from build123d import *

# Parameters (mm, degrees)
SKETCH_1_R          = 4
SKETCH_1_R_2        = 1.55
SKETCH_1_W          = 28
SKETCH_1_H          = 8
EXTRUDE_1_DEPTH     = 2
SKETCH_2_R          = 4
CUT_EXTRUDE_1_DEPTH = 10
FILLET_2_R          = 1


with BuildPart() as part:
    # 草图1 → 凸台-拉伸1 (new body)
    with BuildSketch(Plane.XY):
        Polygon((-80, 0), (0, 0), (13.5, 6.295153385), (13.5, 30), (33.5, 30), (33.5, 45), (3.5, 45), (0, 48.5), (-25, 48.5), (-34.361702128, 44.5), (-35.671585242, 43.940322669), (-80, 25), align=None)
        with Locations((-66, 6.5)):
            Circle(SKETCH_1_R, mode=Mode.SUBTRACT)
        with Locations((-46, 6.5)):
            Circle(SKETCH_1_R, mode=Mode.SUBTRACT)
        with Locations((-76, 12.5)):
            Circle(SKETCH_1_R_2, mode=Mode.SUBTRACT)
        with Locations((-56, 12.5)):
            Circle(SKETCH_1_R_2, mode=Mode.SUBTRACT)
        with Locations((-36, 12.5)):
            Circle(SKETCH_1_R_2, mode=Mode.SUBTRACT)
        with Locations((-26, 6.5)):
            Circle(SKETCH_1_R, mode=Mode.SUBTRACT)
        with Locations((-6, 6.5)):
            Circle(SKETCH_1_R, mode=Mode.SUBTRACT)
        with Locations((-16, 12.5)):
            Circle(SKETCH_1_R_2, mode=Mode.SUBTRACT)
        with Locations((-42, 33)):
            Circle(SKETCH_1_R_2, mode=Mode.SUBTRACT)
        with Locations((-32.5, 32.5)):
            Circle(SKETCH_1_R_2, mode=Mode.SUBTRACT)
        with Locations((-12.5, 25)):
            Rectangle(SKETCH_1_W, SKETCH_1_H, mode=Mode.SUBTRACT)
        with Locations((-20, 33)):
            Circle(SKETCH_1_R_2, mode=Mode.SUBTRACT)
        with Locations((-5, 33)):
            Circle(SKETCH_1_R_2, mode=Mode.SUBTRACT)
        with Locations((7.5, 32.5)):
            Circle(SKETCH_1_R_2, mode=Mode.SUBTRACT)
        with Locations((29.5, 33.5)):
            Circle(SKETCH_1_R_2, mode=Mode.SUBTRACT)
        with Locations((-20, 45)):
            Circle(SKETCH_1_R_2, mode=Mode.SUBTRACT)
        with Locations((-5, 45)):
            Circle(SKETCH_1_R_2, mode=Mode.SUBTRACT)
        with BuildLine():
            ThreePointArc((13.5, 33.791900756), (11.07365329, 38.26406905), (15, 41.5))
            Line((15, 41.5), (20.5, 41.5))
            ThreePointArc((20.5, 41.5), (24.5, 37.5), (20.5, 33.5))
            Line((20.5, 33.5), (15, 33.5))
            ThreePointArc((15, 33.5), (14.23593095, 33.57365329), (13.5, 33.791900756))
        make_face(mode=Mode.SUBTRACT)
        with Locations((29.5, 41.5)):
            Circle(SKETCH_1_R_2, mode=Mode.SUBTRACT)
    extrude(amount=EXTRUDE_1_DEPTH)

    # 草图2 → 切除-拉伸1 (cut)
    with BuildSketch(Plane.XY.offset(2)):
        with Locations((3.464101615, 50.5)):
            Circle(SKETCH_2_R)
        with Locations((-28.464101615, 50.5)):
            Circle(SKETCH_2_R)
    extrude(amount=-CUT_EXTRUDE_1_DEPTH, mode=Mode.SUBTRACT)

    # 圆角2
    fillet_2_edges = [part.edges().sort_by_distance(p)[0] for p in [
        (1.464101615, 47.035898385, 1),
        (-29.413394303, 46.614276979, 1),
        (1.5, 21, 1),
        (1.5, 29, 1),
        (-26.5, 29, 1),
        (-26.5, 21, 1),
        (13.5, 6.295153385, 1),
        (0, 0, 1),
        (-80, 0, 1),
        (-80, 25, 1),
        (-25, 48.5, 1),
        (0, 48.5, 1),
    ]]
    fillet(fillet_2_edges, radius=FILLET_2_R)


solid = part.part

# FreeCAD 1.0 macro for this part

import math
import FreeCAD as App
import Part
import Sketcher
from FreeCAD import Vector
Q = App.Units.Quantity


def edges_at(feature, points):
    """Names of the edges that pass closest to the given points."""
    edges = feature.Shape.Edges
    near = lambda p: min(range(len(edges)), key=lambda i: edges[i].distToShape(Part.Vertex(*p))[0])
    return sorted({f"Edge{near(p) + 1}" for p in points})


def add_polygon(sketch, points):
    """Adds a closed chain of lines whose ends are joined by coincident constraints."""
    first, n = sketch.GeometryCount, len(points)
    for a, b in zip(points, points[1:] + points[:1]):
        sketch.addGeometry(Part.LineSegment(App.Vector(*a, 0), App.Vector(*b, 0)), False)
    for i in range(n):
        sketch.addConstraint(Sketcher.Constraint("Coincident", first + i, 2, first + (i + 1) % n, 1))

doc = App.newDocument("Part")
body = doc.addObject("PartDesign::Body", "Body")

sketch1 = body.newObject("Sketcher::SketchObject", "Sketch")
sketch1.AttachmentSupport = (doc.getObject("XY_Plane"), [""])
sketch1.MapMode = "FlatFace"
add_polygon(sketch1, [(-80, 0), (0, 0), (13.5, 6.295153), (13.5, 30), (33.5, 30), (33.5, 45), (3.5, 45), (0, 48.5), (-25, 48.5), (-34.361702, 44.5), (-35.671585, 43.940323), (-80, 25)])
sketch1.addGeometry(Part.Circle(Vector(-66, 6.5, 0), Vector(0, 0, 1), 4), False)
sketch1.addGeometry(Part.Circle(Vector(-76, 12.5, 0), Vector(0, 0, 1), 1.55), False)
sketch1.addGeometry(Part.Circle(Vector(-56, 12.5, 0), Vector(0, 0, 1), 1.55), False)
sketch1.addGeometry(Part.Circle(Vector(-46, 6.5, 0), Vector(0, 0, 1), 4), False)
sketch1.addGeometry(Part.Circle(Vector(-26, 6.5, 0), Vector(0, 0, 1), 4), False)
sketch1.addGeometry(Part.Circle(Vector(-36, 12.5, 0), Vector(0, 0, 1), 1.55), False)
sketch1.addGeometry(Part.Circle(Vector(-6, 6.5, 0), Vector(0, 0, 1), 4), False)
sketch1.addGeometry(Part.Circle(Vector(-16, 12.5, 0), Vector(0, 0, 1), 1.55), False)
sketch1.addGeometry(Part.Circle(Vector(-42, 33, 0), Vector(0, 0, 1), 1.55), False)
sketch1.addGeometry(Part.Circle(Vector(-32.5, 32.5, 0), Vector(0, 0, 1), 1.55), False)
add_polygon(sketch1, [(1.5, 21), (-26.5, 21), (-26.5, 29), (1.5, 29)])
sketch1.addGeometry(Part.Circle(Vector(-20, 33, 0), Vector(0, 0, 1), 1.55), False)
sketch1.addGeometry(Part.Circle(Vector(-5, 33, 0), Vector(0, 0, 1), 1.55), False)
sketch1.addGeometry(Part.Circle(Vector(7.5, 32.5, 0), Vector(0, 0, 1), 1.55), False)
sketch1.addGeometry(Part.Circle(Vector(29.5, 33.5, 0), Vector(0, 0, 1), 1.55), False)
sketch1.addGeometry(Part.Circle(Vector(-20, 45, 0), Vector(0, 0, 1), 1.55), False)
sketch1.addGeometry(Part.Circle(Vector(-5, 45, 0), Vector(0, 0, 1), 1.55), False)
sketch1.addGeometry(Part.ArcOfCircle(Part.Circle(Vector(15, 37.5, 0), Vector(0, 0, 1), 4), math.radians(-112.024313), math.radians(-90)), False)
sketch1.addGeometry(Part.ArcOfCircle(Part.Circle(Vector(15, 37.5, 0), Vector(0, 0, 1), 4), math.radians(90), math.radians(247.975687)), False)
sketch1.addGeometry(Part.LineSegment(Vector(15, 41.5, 0), Vector(20.5, 41.5, 0)), False)
sketch1.addGeometry(Part.ArcOfCircle(Part.Circle(Vector(20.5, 37.5, 0), Vector(0, 0, 1), 4), math.radians(-90), math.radians(90)), False)
sketch1.addGeometry(Part.LineSegment(Vector(20.5, 33.5, 0), Vector(15, 33.5, 0)), False)
sketch1.addGeometry(Part.Circle(Vector(29.5, 41.5, 0), Vector(0, 0, 1), 1.55), False)
sketch1.addConstraint([
    Sketcher.Constraint("Tangent", 32, 1, 33, 2),
    Sketcher.Constraint("Tangent", 33, 1, 34, 1),
    Sketcher.Constraint("Tangent", 34, 2, 35, 2),
    Sketcher.Constraint("Tangent", 35, 1, 36, 1),
    Sketcher.Constraint("Tangent", 36, 2, 32, 2),
    Sketcher.Constraint("Horizontal", 0),
    Sketcher.Constraint("Vertical", 2),
    Sketcher.Constraint("Horizontal", 3),
    Sketcher.Constraint("Vertical", 4),
    Sketcher.Constraint("Horizontal", 5),
    Sketcher.Constraint("Horizontal", 7),
    Sketcher.Constraint("Vertical", 11),
    Sketcher.Constraint("Horizontal", 22),
    Sketcher.Constraint("Vertical", 23),
    Sketcher.Constraint("Horizontal", 24),
    Sketcher.Constraint("Vertical", 25),
    Sketcher.Constraint("Horizontal", 34),
    Sketcher.Constraint("Horizontal", 36),
    Sketcher.Constraint("Coincident", 0, 2, -1, 1),
    Sketcher.Constraint("Equal", 13, 14),
    Sketcher.Constraint("Equal", 12, 15),
    Sketcher.Constraint("Equal", 15, 16),
    Sketcher.Constraint("Equal", 14, 17),
    Sketcher.Constraint("Equal", 16, 18),
    Sketcher.Constraint("Equal", 17, 19),
    Sketcher.Constraint("Equal", 19, 20),
    Sketcher.Constraint("Equal", 20, 21),
    Sketcher.Constraint("Equal", 21, 26),
    Sketcher.Constraint("Equal", 26, 27),
    Sketcher.Constraint("Equal", 27, 28),
    Sketcher.Constraint("Equal", 28, 29),
    Sketcher.Constraint("Equal", 29, 30),
    Sketcher.Constraint("Equal", 30, 31),
    Sketcher.Constraint("Equal", 18, 32),
    Sketcher.Constraint("Equal", 32, 33),
    Sketcher.Constraint("Equal", 31, 37),
    Sketcher.Constraint("PointOnObject", 6, 2, -2),
    Sketcher.Constraint("Parallel", 8, 9),
    Sketcher.Constraint("Parallel", 9, 10),
    Sketcher.Constraint("Horizontal", 13, 3, 14, 3),
    Sketcher.Constraint("Horizontal", 12, 3, 15, 3),
    Sketcher.Constraint("Horizontal", 15, 3, 16, 3),
    Sketcher.Constraint("Horizontal", 14, 3, 17, 3),
    Sketcher.Constraint("Horizontal", 16, 3, 18, 3),
    Sketcher.Constraint("Horizontal", 17, 3, 19, 3),
    Sketcher.Constraint("Horizontal", 20, 3, 26, 3),
    Sketcher.Constraint("Horizontal", 26, 3, 27, 3),
    Sketcher.Constraint("Horizontal", 21, 3, 28, 3),
    Sketcher.Constraint("Horizontal", 30, 3, 31, 3),
    Sketcher.Constraint("Horizontal", 31, 3, 4, 2),
    Sketcher.Constraint("Horizontal", 37, 3, 33, 1),
    Sketcher.Constraint("Horizontal", 29, 3, 35, 1),
    Sketcher.Constraint("Vertical", 26, 3, 30, 3),
    Sketcher.Constraint("Vertical", 27, 3, 31, 3),
    Sketcher.Constraint("Vertical", 29, 3, 37, 3),
    Sketcher.Constraint("Vertical", 2, 2, 32, 1),
    Sketcher.Constraint("Equal", 7, 11),
    Sketcher.Constraint("Diameter", 12, 8.0),
    Sketcher.Constraint("Diameter", 13, 3.1),
    Sketcher.Constraint("DistanceX", 0, 1, 0, 2, 80.0),
    Sketcher.Constraint("DistanceX", 3, 1, 3, 2, 20.0),
    Sketcher.Constraint("DistanceX", 5, 2, 5, 1, 30.0),
    Sketcher.Constraint("DistanceX", 7, 2, 7, 1, 25.0),
    Sketcher.Constraint("DistanceX", 22, 2, 22, 1, 28.0),
    Sketcher.Constraint("DistanceY", 4, 1, 4, 2, 15.0),
    Sketcher.Constraint("DistanceY", 23, 1, 23, 2, 8.0),
    Sketcher.Constraint("Angle", 1, Q("25 deg")),
    Sketcher.Constraint("Angle", 6, Q("135 deg")),
    Sketcher.Constraint("DistanceX", 34, 1, 34, 2, 5.5),
    Sketcher.Constraint("DistanceX", 12, 3, -1, 1, 66.0),
    Sketcher.Constraint("DistanceX", 13, 3, -1, 1, 76.0),
    Sketcher.Constraint("DistanceX", 14, 3, -1, 1, 56.0),
    Sketcher.Constraint("DistanceX", 15, 3, -1, 1, 46.0),
    Sketcher.Constraint("DistanceX", 16, 3, -1, 1, 26.0),
    Sketcher.Constraint("DistanceX", 17, 3, -1, 1, 36.0),
    Sketcher.Constraint("DistanceX", 18, 3, -1, 1, 6.0),
    Sketcher.Constraint("DistanceX", 19, 3, -1, 1, 16.0),
    Sketcher.Constraint("DistanceX", 20, 3, -1, 1, 42.0),
    Sketcher.Constraint("DistanceY", -1, 1, 20, 3, 33.0),
    Sketcher.Constraint("DistanceX", 26, 3, -1, 1, 20.0),
    Sketcher.Constraint("DistanceX", 27, 3, -1, 1, 5.0),
    Sketcher.Constraint("DistanceY", -1, 1, 30, 3, 45.0),
    Sketcher.Constraint("DistanceX", -1, 1, 32, 3, 15.0),
    Sketcher.Constraint("DistanceY", -1, 1, 22, 2, 21.0),
    Sketcher.Constraint("DistanceY", 12, 3, 13, 3, 6.0),
    Sketcher.Constraint("DistanceY", 17, 3, 21, 3, 20.0),
    Sketcher.Constraint("DistanceX", 21, 3, 28, 3, 40.0),
    Sketcher.Constraint("DistanceX", 28, 3, 29, 3, 22.0),
    Sketcher.Constraint("DistanceY", 28, 3, 29, 3, 1.0),
    Sketcher.Constraint("DistanceX", 35, 3, 29, 3, 9.0),
    Sketcher.Constraint("DistanceX", 28, 3, 1, 2, 6.0),
    Sketcher.Constraint("DistanceY", 28, 3, 6, 2, 16.0),
    Sketcher.Constraint("DistanceY", 8, 2, 7, 2, 4.0),
    Sketcher.Constraint("DistanceX", 21, 3, 22, 2, 6.0),
    Sketcher.Constraint("Distance", 9, 1.424441),
])
pad1 = body.newObject("PartDesign::Pad", "Pad")
pad1.Profile = sketch1
pad1.Length = 2

sketch2 = body.newObject("Sketcher::SketchObject", "Sketch001")
sketch2.AttachmentSupport = (doc.getObject("XY_Plane"), [""])
sketch2.MapMode = "FlatFace"
sketch2.AttachmentOffset = App.Placement(Vector(0, 0, 2), App.Rotation())
sketch2.addGeometry([
    Part.Circle(Vector(3.464102, 50.5, 0), Vector(0, 0, 1), 4),
    Part.Circle(Vector(-28.464102, 50.5, 0), Vector(0, 0, 1), 4),
], False)
sketch2.addConstraint([
    Sketcher.Constraint("Equal", 0, 1),
    Sketcher.Constraint("Horizontal", 0, 3, 1, 3),
    Sketcher.Constraint("Diameter", 0, 8.0),
    Sketcher.Constraint("DistanceY", -1, 1, 0, 3, 50.5),
    Sketcher.Constraint("DistanceX", -1, 1, 0, 3, 3.464102),
    Sketcher.Constraint("DistanceX", 1, 3, -1, 1, 28.464102),
])
pocket1 = body.newObject("PartDesign::Pocket", "Pocket")
pocket1.Profile = sketch2
pocket1.Length = 10
doc.recompute()

fillet = body.newObject("PartDesign::Fillet", "Fillet")
fillet.Base = (pocket1, edges_at(pocket1, [
    (1.464, 47.036, 1),
    (-29.413, 46.614, 1),
    (1.5, 21, 1),
    (1.5, 29, 1),
    (-26.5, 29, 1),
    (-26.5, 21, 1),
    (13.5, 6.295, 1),
    (0, 0, 1),
    (-80, 0, 1),
    (-80, 25, 1),
    (-25, 48.5, 1),
    (0, 48.5, 1),
]))
fillet.Radius = 1

doc.recompute()
